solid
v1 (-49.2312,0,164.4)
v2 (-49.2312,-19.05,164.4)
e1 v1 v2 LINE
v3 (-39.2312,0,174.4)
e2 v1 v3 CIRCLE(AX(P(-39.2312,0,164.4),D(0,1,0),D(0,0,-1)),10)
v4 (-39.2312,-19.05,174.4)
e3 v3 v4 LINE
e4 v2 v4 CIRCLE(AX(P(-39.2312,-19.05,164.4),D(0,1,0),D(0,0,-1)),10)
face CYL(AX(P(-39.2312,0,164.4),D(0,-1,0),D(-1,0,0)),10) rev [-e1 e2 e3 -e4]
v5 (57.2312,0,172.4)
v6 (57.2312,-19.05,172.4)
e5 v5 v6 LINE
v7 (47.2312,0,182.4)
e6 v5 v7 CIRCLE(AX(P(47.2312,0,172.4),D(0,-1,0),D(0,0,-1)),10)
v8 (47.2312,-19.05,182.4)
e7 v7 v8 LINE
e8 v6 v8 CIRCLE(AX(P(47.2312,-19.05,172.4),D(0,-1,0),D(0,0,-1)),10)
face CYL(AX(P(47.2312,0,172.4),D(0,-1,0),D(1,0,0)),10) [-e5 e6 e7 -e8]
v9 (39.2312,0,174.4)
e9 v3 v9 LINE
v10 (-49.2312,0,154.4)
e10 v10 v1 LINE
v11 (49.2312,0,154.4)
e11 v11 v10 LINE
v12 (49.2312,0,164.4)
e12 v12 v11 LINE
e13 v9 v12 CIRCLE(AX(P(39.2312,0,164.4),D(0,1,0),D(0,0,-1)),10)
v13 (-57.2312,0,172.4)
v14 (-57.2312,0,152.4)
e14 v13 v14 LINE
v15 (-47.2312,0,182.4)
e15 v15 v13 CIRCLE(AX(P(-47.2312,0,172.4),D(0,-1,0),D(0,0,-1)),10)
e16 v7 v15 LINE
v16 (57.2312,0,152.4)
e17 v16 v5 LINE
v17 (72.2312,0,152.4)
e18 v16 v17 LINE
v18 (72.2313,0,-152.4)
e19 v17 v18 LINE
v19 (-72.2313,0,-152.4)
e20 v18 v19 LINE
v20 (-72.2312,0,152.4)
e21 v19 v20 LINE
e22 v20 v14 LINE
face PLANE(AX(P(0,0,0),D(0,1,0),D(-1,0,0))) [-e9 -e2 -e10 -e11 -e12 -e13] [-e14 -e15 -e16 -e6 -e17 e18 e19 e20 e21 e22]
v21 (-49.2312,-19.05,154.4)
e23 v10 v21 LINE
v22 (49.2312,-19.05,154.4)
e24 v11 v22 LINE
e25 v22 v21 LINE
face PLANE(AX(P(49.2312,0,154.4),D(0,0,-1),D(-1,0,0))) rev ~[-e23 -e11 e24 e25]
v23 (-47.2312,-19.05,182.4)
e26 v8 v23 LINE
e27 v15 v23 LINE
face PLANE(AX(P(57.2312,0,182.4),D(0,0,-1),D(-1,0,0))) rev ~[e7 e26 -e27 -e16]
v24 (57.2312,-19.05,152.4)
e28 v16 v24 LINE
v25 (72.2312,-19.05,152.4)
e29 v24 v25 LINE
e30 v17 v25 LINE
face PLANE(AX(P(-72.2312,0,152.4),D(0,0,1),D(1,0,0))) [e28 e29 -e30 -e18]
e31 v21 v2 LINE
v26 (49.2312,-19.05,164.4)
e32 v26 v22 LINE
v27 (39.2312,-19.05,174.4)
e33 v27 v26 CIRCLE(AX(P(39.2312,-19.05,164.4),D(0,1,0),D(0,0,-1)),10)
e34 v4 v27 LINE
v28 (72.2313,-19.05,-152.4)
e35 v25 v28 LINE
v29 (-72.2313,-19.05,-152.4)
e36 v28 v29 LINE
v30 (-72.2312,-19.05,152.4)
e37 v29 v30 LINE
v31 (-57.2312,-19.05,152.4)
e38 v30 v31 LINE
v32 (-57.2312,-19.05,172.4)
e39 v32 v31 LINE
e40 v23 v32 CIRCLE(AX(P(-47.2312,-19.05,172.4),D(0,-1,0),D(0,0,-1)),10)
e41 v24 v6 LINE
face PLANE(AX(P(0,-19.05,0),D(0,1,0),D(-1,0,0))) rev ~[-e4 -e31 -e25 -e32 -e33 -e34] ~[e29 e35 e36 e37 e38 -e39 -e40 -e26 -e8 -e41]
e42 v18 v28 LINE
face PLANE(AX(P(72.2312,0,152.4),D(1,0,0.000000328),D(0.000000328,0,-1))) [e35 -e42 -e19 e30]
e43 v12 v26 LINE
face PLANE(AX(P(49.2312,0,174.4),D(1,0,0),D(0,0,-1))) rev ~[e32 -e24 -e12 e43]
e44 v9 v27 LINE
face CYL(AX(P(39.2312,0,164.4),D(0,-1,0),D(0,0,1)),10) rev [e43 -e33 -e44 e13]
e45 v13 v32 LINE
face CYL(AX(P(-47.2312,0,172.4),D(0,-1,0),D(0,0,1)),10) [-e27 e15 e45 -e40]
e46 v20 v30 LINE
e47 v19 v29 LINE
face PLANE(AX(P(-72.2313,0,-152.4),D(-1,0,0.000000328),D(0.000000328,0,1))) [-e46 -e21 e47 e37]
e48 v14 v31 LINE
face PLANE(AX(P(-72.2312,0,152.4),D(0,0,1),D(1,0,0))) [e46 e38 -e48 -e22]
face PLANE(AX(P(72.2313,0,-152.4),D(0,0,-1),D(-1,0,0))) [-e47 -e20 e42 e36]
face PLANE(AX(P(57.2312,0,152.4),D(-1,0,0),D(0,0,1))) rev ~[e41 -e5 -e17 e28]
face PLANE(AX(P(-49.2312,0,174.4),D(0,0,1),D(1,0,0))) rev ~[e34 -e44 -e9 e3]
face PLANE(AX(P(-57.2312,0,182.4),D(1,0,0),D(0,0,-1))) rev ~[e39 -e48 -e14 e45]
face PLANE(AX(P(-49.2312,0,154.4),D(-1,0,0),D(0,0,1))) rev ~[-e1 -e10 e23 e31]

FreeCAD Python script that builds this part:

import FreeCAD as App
import Part
import Sketcher

V = App.Vector
Q = App.Units.Quantity


def edges_at(feature, points):
    """Names of the edges that pass closest to the given points."""
    edges = feature.Shape.Edges
    near = lambda p: min(range(len(edges)), key=lambda i: edges[i].distToShape(Part.Vertex(*p))[0])
    return sorted({f"Edge{near(p) + 1}" for p in points})

doc = App.newDocument("Part")
params = doc.addObject("Spreadsheet::Sheet", "Params")
for row, (alias, value) in enumerate([
    ("sketch1_height", "12 in"),
    ("sketch1_width", "5.6875 in"),
    ("pad1_length", "0.75 in"),
    ("pad2_length", "0.75 in"),
    ("pocket1_length", "0.75 in"),
    ("fillet_radius", "0.3937008 in"),
    ("fillet2_radius", "0.3937008 in"),
    ("fillet3_radius", "0.3937008 in"),
    ("fillet4_radius", "0.3937008 in"),
], start=1):
    params.set(f"A{row}", alias)
    params.set(f"B{row}", "=" + value)
    params.setAlias(f"B{row}", alias)

body = doc.addObject("PartDesign::Body", "Body")

# Sketch on XZ plane
sketch1 = doc.addObject("Sketcher::SketchObject", "Sketch")
body.addObject(sketch1)
sketch1.AttachmentSupport = (doc.XZ_Plane, [""])
sketch1.MapMode = "FlatFace"
sketch1.addGeometry(Part.LineSegment(V(72.2312, 152.4, 0), V(72.2313, -152.4, 0)), False)
sketch1.addGeometry(Part.LineSegment(V(72.2313, -152.4, 0), V(-72.2313, -152.4, 0)), False)
sketch1.addGeometry(Part.LineSegment(V(-72.2313, -152.4, 0), V(-72.2312, 152.4, 0)), False)
sketch1.addGeometry(Part.LineSegment(V(-72.2312, 152.4, 0), V(72.2312, 152.4, 0)), False)
sketch1.addConstraint(Sketcher.Constraint("Coincident", 0, 2, 1, 1))
sketch1.addConstraint(Sketcher.Constraint("Coincident", 1, 2, 2, 1))
sketch1.addConstraint(Sketcher.Constraint("Coincident", 2, 2, 3, 1))
sketch1.addConstraint(Sketcher.Constraint("Coincident", 3, 2, 0, 1))
sketch1.addConstraint(Sketcher.Constraint("Vertical", 0))
sketch1.addConstraint(Sketcher.Constraint("Horizontal", 1))
sketch1.addConstraint(Sketcher.Constraint("Vertical", 2))
sketch1.addConstraint(Sketcher.Constraint("Horizontal", 3))
sketch1.addConstraint(Sketcher.Constraint("Symmetric", 0, 2, 2, 2, -1, 1))
sketch1.addConstraint(Sketcher.Constraint("DistanceY", 0, 2, 0, 1, Q("12 in")))
sketch1.addConstraint(Sketcher.Constraint("DistanceX", 1, 2, 1, 1, Q("5.6875 in")))
sketch1.setExpression("Constraints[9]", "Params.sketch1_height")
sketch1.setExpression("Constraints[10]", "Params.sketch1_width")
pad1 = doc.addObject("PartDesign::Pad", "Pad")
body.addObject(pad1)
pad1.Profile = sketch1
pad1.setExpression("Length", "Params.pad1_length")

# Sketch on XZ plane
sketch2 = doc.addObject("Sketcher::SketchObject", "Sketch001")
body.addObject(sketch2)
sketch2.AttachmentSupport = (doc.XZ_Plane, [""])
sketch2.MapMode = "FlatFace"
sketch2.addGeometry(Part.LineSegment(V(57.2312, 182.4, 0), V(57.2312, 152.4, 0)), False)
sketch2.addGeometry(Part.LineSegment(V(57.2312, 152.4, 0), V(-57.2312, 152.4, 0)), False)
sketch2.addGeometry(Part.LineSegment(V(-57.2312, 152.4, 0), V(-57.2312, 182.4, 0)), False)
sketch2.addGeometry(Part.LineSegment(V(-57.2312, 182.4, 0), V(57.2312, 182.4, 0)), False)
sketch2.addConstraint(Sketcher.Constraint("Coincident", 0, 2, 1, 1))
sketch2.addConstraint(Sketcher.Constraint("Coincident", 1, 2, 2, 1))
sketch2.addConstraint(Sketcher.Constraint("Coincident", 2, 2, 3, 1))
sketch2.addConstraint(Sketcher.Constraint("Coincident", 3, 2, 0, 1))
sketch2.addConstraint(Sketcher.Constraint("Vertical", 0))
sketch2.addConstraint(Sketcher.Constraint("Horizontal", 1))
sketch2.addConstraint(Sketcher.Constraint("Vertical", 2))
sketch2.addConstraint(Sketcher.Constraint("Horizontal", 3))
sketch2.addConstraint(Sketcher.Constraint("DistanceY", 0, 2, 0, 1, Q("1.1811 in")))
sketch2.addConstraint(Sketcher.Constraint("DistanceY", -1, 1, 0, 2, Q("6 in")))
sketch2.addConstraint(Sketcher.Constraint("DistanceX", 1, 2, 1, 1, Q("4.5064 in")))
sketch2.addConstraint(Sketcher.Constraint("DistanceX", -1, 1, 0, 2, Q("2.2532 in")))
pad2 = doc.addObject("PartDesign::Pad", "Pad001")
body.addObject(pad2)
pad2.Profile = sketch2
pad2.setExpression("Length", "Params.pad2_length")

# Sketch on XZ plane
sketch3 = doc.addObject("Sketcher::SketchObject", "Sketch002")
body.addObject(sketch3)
sketch3.AttachmentSupport = (doc.XZ_Plane, [""])
sketch3.MapMode = "FlatFace"
sketch3.addGeometry(Part.LineSegment(V(-49.2312, 154.4, 0), V(-49.2312, 174.4, 0)), False)
sketch3.addGeometry(Part.LineSegment(V(-49.2312, 174.4, 0), V(49.2312, 174.4, 0)), False)
sketch3.addGeometry(Part.LineSegment(V(49.2312, 174.4, 0), V(49.2312, 154.4, 0)), False)
sketch3.addGeometry(Part.LineSegment(V(49.2312, 154.4, 0), V(-49.2312, 154.4, 0)), False)
sketch3.addConstraint(Sketcher.Constraint("Coincident", 0, 2, 1, 1))
sketch3.addConstraint(Sketcher.Constraint("Coincident", 1, 2, 2, 1))
sketch3.addConstraint(Sketcher.Constraint("Coincident", 2, 2, 3, 1))
sketch3.addConstraint(Sketcher.Constraint("Coincident", 3, 2, 0, 1))
sketch3.addConstraint(Sketcher.Constraint("Vertical", 0))
sketch3.addConstraint(Sketcher.Constraint("Horizontal", 1))
sketch3.addConstraint(Sketcher.Constraint("Vertical", 2))
sketch3.addConstraint(Sketcher.Constraint("Horizontal", 3))
sketch3.addConstraint(Sketcher.Constraint("DistanceY", 0, 1, 0, 2, Q("0.7874 in")))
sketch3.addConstraint(Sketcher.Constraint("DistanceX", 1, 1, 1, 2, Q("98.4624 mm")))
sketch3.addConstraint(Sketcher.Constraint("DistanceX", 0, 2, -1, 1, Q("49.2312 mm")))
sketch3.addConstraint(Sketcher.Constraint("DistanceY", -1, 1, 0, 2, Q("174.4 mm")))
pocket1 = doc.addObject("PartDesign::Pocket", "Pocket")
body.addObject(pocket1)
pocket1.Profile = sketch3
pocket1.setExpression("Length", "Params.pocket1_length")
pocket1.Reversed = True
doc.recompute()

fillet = doc.addObject("PartDesign::Fillet", "Fillet")
body.addObject(fillet)
fillet.Base = (pocket1, edges_at(pocket1, [(57.231, -9.525, 182.4)]))
fillet.setExpression("Radius", "Params.fillet_radius")
doc.recompute()

fillet2 = doc.addObject("PartDesign::Fillet", "Fillet001")
body.addObject(fillet2)
fillet2.Base = (fillet, edges_at(fillet, [(-57.231, -9.525, 182.4)]))
fillet2.setExpression("Radius", "Params.fillet2_radius")
doc.recompute()

fillet3 = doc.addObject("PartDesign::Fillet", "Fillet002")
body.addObject(fillet3)
fillet3.Base = (fillet2, edges_at(fillet2, [(-49.231, -9.525, 174.4)]))
fillet3.setExpression("Radius", "Params.fillet3_radius")
doc.recompute()

fillet4 = doc.addObject("PartDesign::Fillet", "Fillet003")
body.addObject(fillet4)
fillet4.Base = (fillet3, edges_at(fillet3, [(49.231, -9.525, 174.4)]))
fillet4.setExpression("Radius", "Params.fillet4_radius")

doc.recompute()
